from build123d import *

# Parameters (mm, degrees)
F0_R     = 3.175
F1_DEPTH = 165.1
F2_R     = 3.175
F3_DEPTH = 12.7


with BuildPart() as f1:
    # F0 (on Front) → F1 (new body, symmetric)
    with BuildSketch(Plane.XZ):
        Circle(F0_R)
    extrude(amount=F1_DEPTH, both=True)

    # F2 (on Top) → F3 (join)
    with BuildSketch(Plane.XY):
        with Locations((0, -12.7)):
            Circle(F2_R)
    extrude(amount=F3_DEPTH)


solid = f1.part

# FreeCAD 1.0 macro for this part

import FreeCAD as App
import Part
import Sketcher
Q = App.Units.Quantity

doc = App.newDocument("Part")
params = doc.addObject("Spreadsheet::Sheet", "Params")
for row, (alias, value) in enumerate([
    ("sketch1_diameter", "0.25 in"),
    ("pad1_length", "13 in"),
    ("sketch2_diameter", "0.25 in"),
    ("pad2_length", "0.5 in"),
], start=1):
    params.set(f"A{row}", alias)
    params.set(f"B{row}", "=" + value)
    params.setAlias(f"B{row}", alias)

body = doc.addObject("PartDesign::Body", "Body")

# Sketch on XZ plane
sketch1 = body.newObject("Sketcher::SketchObject", "Sketch")
sketch1.AttachmentSupport = (doc.getObject("XZ_Plane"), [""])
sketch1.MapMode = "FlatFace"
sketch1.addGeometry(Part.Circle(App.Vector(0, 0, 0), App.Vector(0, 0, 1), 3.2), False)
sketch1.addConstraint(Sketcher.Constraint("Coincident", 0, 3, -1, 1))
sketch1.addConstraint(Sketcher.Constraint("Diameter", 0, Q("0.25 in")))
sketch1.setExpression("Constraints[1]", "Params.sketch1_diameter")
pad1 = body.newObject("PartDesign::Pad", "Pad")
pad1.Profile = sketch1
pad1.setExpression("Length", "Params.pad1_length")
pad1.Midplane = True

# Sketch on XY plane
sketch2 = body.newObject("Sketcher::SketchObject", "Sketch001")
sketch2.AttachmentSupport = (doc.getObject("XY_Plane"), [""])
sketch2.MapMode = "FlatFace"
sketch2.addGeometry(Part.Circle(App.Vector(0, -12.7, 0), App.Vector(0, 0, 1), 3.2), False)
sketch2.addConstraint(Sketcher.Constraint("PointOnObject", 0, 3, -2))
sketch2.addConstraint(Sketcher.Constraint("Diameter", 0, Q("0.25 in")))
sketch2.addConstraint(Sketcher.Constraint("DistanceY", 0, 3, -1, 1, Q("0.5 in")))
sketch2.setExpression("Constraints[1]", "Params.sketch2_diameter")
pad2 = body.newObject("PartDesign::Pad", "Pad001")
pad2.Profile = sketch2
pad2.setExpression("Length", "Params.pad2_length")

doc.recompute()
